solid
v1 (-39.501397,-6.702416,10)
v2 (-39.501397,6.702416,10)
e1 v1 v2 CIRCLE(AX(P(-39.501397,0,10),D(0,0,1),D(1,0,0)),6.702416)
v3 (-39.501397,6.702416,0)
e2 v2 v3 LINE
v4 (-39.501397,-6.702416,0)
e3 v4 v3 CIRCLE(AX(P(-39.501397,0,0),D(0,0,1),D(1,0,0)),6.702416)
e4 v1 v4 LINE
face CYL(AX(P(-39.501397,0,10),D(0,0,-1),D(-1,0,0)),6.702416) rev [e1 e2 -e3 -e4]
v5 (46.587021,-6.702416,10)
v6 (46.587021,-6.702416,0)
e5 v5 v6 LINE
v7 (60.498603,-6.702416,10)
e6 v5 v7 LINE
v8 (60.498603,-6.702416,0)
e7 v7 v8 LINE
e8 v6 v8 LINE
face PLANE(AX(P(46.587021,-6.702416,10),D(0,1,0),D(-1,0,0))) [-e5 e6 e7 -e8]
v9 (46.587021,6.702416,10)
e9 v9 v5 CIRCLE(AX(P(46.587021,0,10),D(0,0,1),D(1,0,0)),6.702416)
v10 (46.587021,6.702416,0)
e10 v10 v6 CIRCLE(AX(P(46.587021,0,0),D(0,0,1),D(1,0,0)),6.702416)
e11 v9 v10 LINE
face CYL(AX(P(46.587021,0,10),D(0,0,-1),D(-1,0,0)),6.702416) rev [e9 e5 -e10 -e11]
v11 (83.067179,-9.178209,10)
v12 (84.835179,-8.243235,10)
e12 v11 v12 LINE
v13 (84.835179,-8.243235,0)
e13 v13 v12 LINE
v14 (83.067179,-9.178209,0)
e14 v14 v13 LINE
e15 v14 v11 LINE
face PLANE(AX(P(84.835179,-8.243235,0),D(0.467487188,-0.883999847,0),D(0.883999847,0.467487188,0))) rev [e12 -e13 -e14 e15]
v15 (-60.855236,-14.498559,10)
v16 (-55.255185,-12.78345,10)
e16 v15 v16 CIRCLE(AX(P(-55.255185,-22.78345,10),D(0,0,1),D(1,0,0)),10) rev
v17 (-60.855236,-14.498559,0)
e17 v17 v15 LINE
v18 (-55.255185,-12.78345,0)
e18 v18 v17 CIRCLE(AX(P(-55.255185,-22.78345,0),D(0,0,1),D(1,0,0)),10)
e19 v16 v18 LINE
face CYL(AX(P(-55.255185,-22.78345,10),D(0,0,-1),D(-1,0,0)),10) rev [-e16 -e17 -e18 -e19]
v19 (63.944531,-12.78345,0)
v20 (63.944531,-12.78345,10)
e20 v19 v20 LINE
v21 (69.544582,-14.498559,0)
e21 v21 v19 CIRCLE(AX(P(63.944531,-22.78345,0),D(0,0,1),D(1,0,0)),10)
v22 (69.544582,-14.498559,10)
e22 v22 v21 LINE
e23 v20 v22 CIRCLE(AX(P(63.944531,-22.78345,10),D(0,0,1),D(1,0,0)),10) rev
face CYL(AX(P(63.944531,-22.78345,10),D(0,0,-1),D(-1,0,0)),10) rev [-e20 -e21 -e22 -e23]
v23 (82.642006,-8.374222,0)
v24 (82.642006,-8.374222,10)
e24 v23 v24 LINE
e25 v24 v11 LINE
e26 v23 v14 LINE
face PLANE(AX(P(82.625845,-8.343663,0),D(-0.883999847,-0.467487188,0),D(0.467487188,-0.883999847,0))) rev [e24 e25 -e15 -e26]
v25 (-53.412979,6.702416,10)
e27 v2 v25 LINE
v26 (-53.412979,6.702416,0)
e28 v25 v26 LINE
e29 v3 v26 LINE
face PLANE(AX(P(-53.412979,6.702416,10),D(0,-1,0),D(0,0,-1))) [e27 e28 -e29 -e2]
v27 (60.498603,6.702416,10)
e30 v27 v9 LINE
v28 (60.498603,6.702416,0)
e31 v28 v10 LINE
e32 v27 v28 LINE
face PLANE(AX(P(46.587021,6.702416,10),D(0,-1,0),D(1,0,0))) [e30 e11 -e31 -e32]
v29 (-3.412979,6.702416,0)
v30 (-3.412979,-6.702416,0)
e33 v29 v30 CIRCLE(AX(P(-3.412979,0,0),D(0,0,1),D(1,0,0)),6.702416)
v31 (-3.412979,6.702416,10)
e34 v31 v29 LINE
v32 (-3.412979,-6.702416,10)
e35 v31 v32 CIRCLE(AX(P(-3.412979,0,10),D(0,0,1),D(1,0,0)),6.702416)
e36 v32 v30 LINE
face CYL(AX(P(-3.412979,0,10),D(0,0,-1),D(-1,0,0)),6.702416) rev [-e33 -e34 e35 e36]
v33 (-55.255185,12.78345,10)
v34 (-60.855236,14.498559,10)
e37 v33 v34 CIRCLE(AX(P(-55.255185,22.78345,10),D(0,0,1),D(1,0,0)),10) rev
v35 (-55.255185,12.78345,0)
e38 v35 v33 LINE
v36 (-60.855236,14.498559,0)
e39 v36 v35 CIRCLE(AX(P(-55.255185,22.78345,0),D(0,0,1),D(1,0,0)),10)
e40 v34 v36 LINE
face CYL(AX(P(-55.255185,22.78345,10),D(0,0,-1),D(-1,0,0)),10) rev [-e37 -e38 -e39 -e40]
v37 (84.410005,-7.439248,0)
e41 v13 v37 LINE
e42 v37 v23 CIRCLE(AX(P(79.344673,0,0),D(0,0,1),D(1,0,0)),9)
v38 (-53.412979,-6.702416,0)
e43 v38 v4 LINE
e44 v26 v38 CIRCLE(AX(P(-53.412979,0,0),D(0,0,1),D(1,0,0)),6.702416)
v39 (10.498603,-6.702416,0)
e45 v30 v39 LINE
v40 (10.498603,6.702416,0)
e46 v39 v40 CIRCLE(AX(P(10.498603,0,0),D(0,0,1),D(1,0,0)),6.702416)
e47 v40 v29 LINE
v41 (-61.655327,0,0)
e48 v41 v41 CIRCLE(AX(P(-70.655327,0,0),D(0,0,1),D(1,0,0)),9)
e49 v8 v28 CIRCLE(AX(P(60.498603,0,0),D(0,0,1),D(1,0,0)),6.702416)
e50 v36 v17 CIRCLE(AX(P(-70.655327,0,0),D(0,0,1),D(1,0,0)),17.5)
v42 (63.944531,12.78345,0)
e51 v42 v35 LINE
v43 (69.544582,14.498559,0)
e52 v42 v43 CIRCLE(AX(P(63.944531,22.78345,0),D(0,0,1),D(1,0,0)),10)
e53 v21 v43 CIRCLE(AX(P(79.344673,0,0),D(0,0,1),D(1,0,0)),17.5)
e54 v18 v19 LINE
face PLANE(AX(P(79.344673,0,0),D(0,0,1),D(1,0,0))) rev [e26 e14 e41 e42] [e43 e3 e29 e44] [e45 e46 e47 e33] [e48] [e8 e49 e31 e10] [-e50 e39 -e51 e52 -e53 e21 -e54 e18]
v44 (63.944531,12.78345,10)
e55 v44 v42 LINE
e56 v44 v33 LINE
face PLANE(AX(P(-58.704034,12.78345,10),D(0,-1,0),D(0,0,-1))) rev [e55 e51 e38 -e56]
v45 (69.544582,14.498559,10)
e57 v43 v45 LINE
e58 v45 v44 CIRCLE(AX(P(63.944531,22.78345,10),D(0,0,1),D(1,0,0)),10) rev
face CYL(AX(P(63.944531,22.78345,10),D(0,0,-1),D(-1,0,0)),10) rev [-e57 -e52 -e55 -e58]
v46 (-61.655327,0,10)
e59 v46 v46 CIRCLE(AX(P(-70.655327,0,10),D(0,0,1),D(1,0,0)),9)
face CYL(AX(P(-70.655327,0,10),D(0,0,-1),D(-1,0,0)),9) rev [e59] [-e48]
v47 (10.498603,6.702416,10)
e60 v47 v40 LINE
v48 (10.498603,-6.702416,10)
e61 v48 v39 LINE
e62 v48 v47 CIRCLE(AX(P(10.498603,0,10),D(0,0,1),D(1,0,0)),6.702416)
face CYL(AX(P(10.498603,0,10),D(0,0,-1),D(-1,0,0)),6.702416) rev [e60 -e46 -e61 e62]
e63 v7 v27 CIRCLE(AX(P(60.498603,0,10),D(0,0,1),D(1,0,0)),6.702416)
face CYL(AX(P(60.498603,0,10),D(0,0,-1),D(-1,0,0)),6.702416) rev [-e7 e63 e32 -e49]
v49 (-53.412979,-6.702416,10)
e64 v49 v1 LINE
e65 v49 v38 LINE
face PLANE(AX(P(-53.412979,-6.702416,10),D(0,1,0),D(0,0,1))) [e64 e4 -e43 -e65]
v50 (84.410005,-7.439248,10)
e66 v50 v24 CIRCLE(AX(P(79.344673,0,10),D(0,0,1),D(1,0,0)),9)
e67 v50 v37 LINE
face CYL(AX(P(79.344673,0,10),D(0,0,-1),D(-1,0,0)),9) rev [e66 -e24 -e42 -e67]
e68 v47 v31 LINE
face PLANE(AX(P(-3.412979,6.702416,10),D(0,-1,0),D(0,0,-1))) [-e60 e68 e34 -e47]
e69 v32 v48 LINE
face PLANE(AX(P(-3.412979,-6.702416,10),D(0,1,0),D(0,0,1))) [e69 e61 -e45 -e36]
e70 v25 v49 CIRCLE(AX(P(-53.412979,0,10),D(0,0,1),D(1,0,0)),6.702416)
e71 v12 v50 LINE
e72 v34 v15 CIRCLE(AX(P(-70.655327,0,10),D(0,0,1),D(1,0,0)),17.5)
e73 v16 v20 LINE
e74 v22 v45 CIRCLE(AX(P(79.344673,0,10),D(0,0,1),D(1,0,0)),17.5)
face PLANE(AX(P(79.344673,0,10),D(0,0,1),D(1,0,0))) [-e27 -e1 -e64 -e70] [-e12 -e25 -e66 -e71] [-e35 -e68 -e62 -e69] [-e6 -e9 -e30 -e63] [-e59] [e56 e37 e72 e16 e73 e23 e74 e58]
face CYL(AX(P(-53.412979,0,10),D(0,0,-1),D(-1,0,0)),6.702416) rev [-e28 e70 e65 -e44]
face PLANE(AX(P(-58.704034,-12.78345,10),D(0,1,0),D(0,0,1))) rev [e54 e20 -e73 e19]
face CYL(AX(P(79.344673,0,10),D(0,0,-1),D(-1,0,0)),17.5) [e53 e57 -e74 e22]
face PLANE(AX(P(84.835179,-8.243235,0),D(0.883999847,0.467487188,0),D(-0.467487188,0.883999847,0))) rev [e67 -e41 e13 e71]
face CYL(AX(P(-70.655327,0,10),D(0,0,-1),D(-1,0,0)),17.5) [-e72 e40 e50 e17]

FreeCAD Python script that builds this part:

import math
import FreeCAD as App
import Part
import Sketcher

V = App.Vector
Q = App.Units.Quantity


def edges_at(feature, points):
    """Names of the edges that pass closest to the given points."""
    edges = feature.Shape.Edges
    near = lambda p: min(range(len(edges)), key=lambda i: edges[i].distToShape(Part.Vertex(*p))[0])
    return sorted({f"Edge{near(p) + 1}" for p in points})


def add_polygon(sketch, points):
    """Adds a closed chain of lines whose ends are joined by coincident constraints."""
    first, n = sketch.GeometryCount, len(points)
    for a, b in zip(points, points[1:] + points[:1]):
        sketch.addGeometry(Part.LineSegment(App.Vector(*a, 0), App.Vector(*b, 0)), False)
    for i in range(n):
        sketch.addConstraint(Sketcher.Constraint("Coincident", first + i, 2, first + (i + 1) % n, 1))

doc = App.newDocument("Part")
params = doc.addObject("Spreadsheet::Sheet", "Params")
for row, (alias, value) in enumerate([
    ("sketch1_diameter", "18 mm"),
    ("sketch1_radius", "17.5 mm"),
    ("pad1_length", "10 mm"),
    ("fillet_radius", "10 mm"),
    ("sketch2_length", "2 mm"),
    ("pocket1_length", "10 mm"),
], start=1):
    params.set(f"A{row}", alias)
    params.set(f"B{row}", "=" + value)
    params.setAlias(f"B{row}", alias)

body = doc.addObject("PartDesign::Body", "Body")

sketch1 = doc.addObject("Sketcher::SketchObject", "Sketch")
body.addObject(sketch1)
sketch1.AttachmentSupport = (doc.XY_Plane, [""])
sketch1.MapMode = "FlatFace"
sketch1.addGeometry([
    Part.LineSegment(V(67, 13, 0), V(-59, 13, 0)),
    Part.ArcOfCircle(Part.Circle(V(-71, 0, 0), V(0, 0, 1), 18), math.radians(47), math.radians(313)),
    Part.LineSegment(V(-59, -13, 0), V(67, -13, 0)),
    Part.ArcOfCircle(Part.Circle(V(79, 0, 0), V(0, 0, 1), 18), math.radians(-133), math.radians(133)),
    Part.Circle(V(79, 0, 0), V(0, 0, 1), 9),
    Part.LineSegment(V(47, 7, 0), V(60, 7, 0)),
    Part.ArcOfCircle(Part.Circle(V(60, 0, 0), V(0, 0, 1), 7), math.radians(-90), math.radians(90)),
    Part.LineSegment(V(60, -7, 0), V(47, -7, 0)),
    Part.ArcOfCircle(Part.Circle(V(47, 0, 0), V(0, 0, 1), 7), math.radians(90), math.radians(270)),
    Part.LineSegment(V(-3, 7, 0), V(10, 7, 0)),
    Part.ArcOfCircle(Part.Circle(V(10, 0, 0), V(0, 0, 1), 7), math.radians(-90), math.radians(90)),
    Part.LineSegment(V(10, -7, 0), V(-3, -7, 0)),
    Part.ArcOfCircle(Part.Circle(V(-3, 0, 0), V(0, 0, 1), 7), math.radians(90), math.radians(270)),
    Part.LineSegment(V(-53, 7, 0), V(-40, 7, 0)),
    Part.ArcOfCircle(Part.Circle(V(-40, 0, 0), V(0, 0, 1), 7), math.radians(-90), math.radians(90)),
    Part.LineSegment(V(-40, -7, 0), V(-53, -7, 0)),
    Part.ArcOfCircle(Part.Circle(V(-53, 0, 0), V(0, 0, 1), 7), math.radians(90), math.radians(270)),
    Part.Circle(V(-71, 0, 0), V(0, 0, 1), 9),
], False)
sketch1.addConstraint([
    Sketcher.Constraint("Coincident", 0, 2, 1, 1),
    Sketcher.Constraint("Coincident", 1, 2, 2, 1),
    Sketcher.Constraint("Coincident", 2, 2, 3, 1),
    Sketcher.Constraint("Coincident", 3, 2, 0, 1),
    Sketcher.Constraint("Tangent", 5, 2, 6, 2),
    Sketcher.Constraint("Tangent", 6, 1, 7, 1),
    Sketcher.Constraint("Tangent", 7, 2, 8, 2),
    Sketcher.Constraint("Tangent", 8, 1, 5, 1),
    Sketcher.Constraint("Tangent", 9, 2, 10, 2),
    Sketcher.Constraint("Tangent", 10, 1, 11, 1),
    Sketcher.Constraint("Tangent", 11, 2, 12, 2),
    Sketcher.Constraint("Tangent", 12, 1, 9, 1),
    Sketcher.Constraint("Tangent", 13, 2, 14, 2),
    Sketcher.Constraint("Tangent", 14, 1, 15, 1),
    Sketcher.Constraint("Tangent", 15, 2, 16, 2),
    Sketcher.Constraint("Tangent", 16, 1, 13, 1),
    Sketcher.Constraint("Horizontal", 0),
    Sketcher.Constraint("Horizontal", 2),
    Sketcher.Constraint("Horizontal", 5),
    Sketcher.Constraint("Horizontal", 7),
    Sketcher.Constraint("Horizontal", 9),
    Sketcher.Constraint("Horizontal", 11),
    Sketcher.Constraint("Horizontal", 13),
    Sketcher.Constraint("Horizontal", 15),
    Sketcher.Constraint("Coincident", 4, 3, 3, 3),
    Sketcher.Constraint("Coincident", 17, 3, 1, 3),
    Sketcher.Constraint("Equal", 1, 3),
    Sketcher.Constraint("Equal", 8, 10),
    Sketcher.Constraint("Equal", 12, 14),
    Sketcher.Constraint("Equal", 4, 17),
    Sketcher.Constraint("Symmetric", 0, 2, 1, 2, -1),
    Sketcher.Constraint("PointOnObject", 3, 3, -1),
    Sketcher.Constraint("PointOnObject", 6, 3, -1),
    Sketcher.Constraint("PointOnObject", 10, 3, -1),
    Sketcher.Constraint("PointOnObject", 14, 3, -1),
    Sketcher.Constraint("Equal", 7, 9),
    Sketcher.Constraint("Equal", 11, 13),
    Sketcher.Constraint("Diameter", 4, Q("18 mm")),
    Sketcher.Constraint("Radius", 1, Q("17.5 mm")),
    Sketcher.Constraint("DistanceX", 1, 3, 3, 3, Q("150 mm")),
    Sketcher.Constraint("DistanceX", 10, 3, 6, 3, Q("50 mm")),
    Sketcher.Constraint("DistanceX", 14, 3, 10, 3, Q("50 mm")),
    Sketcher.Constraint("Radius", 6, Q("6.702416 mm")),
    Sketcher.Constraint("DistanceX", 5, 1, 5, 2, Q("13.911582 mm")),
    Sketcher.Constraint("DistanceY", 1, 2, 0, 2, Q("25.566901 mm")),
    Sketcher.Constraint("DistanceX", -1, 1, 8, 3, Q("46.587021 mm")),
    Sketcher.Constraint("DistanceX", -1, 1, 2, 2, Q("67.39338 mm")),
])
sketch1.setExpression("Constraints[37]", "Params.sketch1_diameter")
sketch1.setExpression("Constraints[38]", "Params.sketch1_radius")
pad1 = doc.addObject("PartDesign::Pad", "Pad")
body.addObject(pad1)
pad1.Profile = sketch1
pad1.setExpression("Length", "Params.pad1_length")
doc.recompute()

fillet = doc.addObject("PartDesign::Fillet", "Fillet")
body.addObject(fillet)
fillet.Base = (pad1, edges_at(pad1, [
    (67.393, -12.783, 5),
    (-58.704, -12.783, 5),
    (-58.704, 12.783, 5),
    (67.393, 12.783, 5),
]))
fillet.setExpression("Radius", "Params.fillet_radius")

sketch2 = doc.addObject("Sketcher::SketchObject", "Sketch001")
body.addObject(sketch2)
sketch2.AttachmentSupport = (doc.XY_Plane, [""])
sketch2.MapMode = "FlatFace"
sketch2.AttachmentOffset = App.Placement(V(0, 0, 10), App.Rotation())
add_polygon(sketch2, [(82.6, -8.3), (83.1, -9.2), (84.8, -8.2), (84.4, -7.4)])
sketch2.addConstraint([
    Sketcher.Constraint("Perpendicular", 0, 1),
    Sketcher.Constraint("Perpendicular", 1, 2),
    Sketcher.Constraint("Perpendicular", 2, 3),
    Sketcher.Constraint("Distance", 1, Q("2 mm")),
    Sketcher.Constraint("DistanceX", 0, 2, 1, 2, Q("1.768 mm")),
    Sketcher.Constraint("DistanceX", -1, 1, 0, 2, Q("83.067179 mm")),
    Sketcher.Constraint("DistanceY", 0, 2, -1, 1, Q("9.178209 mm")),
    Sketcher.Constraint("DistanceY", 2, 2, -1, 1, Q("7.408688 mm")),
])
sketch2.setExpression("Constraints[7]", "Params.sketch2_length")
pocket1 = doc.addObject("PartDesign::Pocket", "Pocket")
body.addObject(pocket1)
pocket1.Profile = sketch2
pocket1.setExpression("Length", "Params.pocket1_length")

doc.recompute()
